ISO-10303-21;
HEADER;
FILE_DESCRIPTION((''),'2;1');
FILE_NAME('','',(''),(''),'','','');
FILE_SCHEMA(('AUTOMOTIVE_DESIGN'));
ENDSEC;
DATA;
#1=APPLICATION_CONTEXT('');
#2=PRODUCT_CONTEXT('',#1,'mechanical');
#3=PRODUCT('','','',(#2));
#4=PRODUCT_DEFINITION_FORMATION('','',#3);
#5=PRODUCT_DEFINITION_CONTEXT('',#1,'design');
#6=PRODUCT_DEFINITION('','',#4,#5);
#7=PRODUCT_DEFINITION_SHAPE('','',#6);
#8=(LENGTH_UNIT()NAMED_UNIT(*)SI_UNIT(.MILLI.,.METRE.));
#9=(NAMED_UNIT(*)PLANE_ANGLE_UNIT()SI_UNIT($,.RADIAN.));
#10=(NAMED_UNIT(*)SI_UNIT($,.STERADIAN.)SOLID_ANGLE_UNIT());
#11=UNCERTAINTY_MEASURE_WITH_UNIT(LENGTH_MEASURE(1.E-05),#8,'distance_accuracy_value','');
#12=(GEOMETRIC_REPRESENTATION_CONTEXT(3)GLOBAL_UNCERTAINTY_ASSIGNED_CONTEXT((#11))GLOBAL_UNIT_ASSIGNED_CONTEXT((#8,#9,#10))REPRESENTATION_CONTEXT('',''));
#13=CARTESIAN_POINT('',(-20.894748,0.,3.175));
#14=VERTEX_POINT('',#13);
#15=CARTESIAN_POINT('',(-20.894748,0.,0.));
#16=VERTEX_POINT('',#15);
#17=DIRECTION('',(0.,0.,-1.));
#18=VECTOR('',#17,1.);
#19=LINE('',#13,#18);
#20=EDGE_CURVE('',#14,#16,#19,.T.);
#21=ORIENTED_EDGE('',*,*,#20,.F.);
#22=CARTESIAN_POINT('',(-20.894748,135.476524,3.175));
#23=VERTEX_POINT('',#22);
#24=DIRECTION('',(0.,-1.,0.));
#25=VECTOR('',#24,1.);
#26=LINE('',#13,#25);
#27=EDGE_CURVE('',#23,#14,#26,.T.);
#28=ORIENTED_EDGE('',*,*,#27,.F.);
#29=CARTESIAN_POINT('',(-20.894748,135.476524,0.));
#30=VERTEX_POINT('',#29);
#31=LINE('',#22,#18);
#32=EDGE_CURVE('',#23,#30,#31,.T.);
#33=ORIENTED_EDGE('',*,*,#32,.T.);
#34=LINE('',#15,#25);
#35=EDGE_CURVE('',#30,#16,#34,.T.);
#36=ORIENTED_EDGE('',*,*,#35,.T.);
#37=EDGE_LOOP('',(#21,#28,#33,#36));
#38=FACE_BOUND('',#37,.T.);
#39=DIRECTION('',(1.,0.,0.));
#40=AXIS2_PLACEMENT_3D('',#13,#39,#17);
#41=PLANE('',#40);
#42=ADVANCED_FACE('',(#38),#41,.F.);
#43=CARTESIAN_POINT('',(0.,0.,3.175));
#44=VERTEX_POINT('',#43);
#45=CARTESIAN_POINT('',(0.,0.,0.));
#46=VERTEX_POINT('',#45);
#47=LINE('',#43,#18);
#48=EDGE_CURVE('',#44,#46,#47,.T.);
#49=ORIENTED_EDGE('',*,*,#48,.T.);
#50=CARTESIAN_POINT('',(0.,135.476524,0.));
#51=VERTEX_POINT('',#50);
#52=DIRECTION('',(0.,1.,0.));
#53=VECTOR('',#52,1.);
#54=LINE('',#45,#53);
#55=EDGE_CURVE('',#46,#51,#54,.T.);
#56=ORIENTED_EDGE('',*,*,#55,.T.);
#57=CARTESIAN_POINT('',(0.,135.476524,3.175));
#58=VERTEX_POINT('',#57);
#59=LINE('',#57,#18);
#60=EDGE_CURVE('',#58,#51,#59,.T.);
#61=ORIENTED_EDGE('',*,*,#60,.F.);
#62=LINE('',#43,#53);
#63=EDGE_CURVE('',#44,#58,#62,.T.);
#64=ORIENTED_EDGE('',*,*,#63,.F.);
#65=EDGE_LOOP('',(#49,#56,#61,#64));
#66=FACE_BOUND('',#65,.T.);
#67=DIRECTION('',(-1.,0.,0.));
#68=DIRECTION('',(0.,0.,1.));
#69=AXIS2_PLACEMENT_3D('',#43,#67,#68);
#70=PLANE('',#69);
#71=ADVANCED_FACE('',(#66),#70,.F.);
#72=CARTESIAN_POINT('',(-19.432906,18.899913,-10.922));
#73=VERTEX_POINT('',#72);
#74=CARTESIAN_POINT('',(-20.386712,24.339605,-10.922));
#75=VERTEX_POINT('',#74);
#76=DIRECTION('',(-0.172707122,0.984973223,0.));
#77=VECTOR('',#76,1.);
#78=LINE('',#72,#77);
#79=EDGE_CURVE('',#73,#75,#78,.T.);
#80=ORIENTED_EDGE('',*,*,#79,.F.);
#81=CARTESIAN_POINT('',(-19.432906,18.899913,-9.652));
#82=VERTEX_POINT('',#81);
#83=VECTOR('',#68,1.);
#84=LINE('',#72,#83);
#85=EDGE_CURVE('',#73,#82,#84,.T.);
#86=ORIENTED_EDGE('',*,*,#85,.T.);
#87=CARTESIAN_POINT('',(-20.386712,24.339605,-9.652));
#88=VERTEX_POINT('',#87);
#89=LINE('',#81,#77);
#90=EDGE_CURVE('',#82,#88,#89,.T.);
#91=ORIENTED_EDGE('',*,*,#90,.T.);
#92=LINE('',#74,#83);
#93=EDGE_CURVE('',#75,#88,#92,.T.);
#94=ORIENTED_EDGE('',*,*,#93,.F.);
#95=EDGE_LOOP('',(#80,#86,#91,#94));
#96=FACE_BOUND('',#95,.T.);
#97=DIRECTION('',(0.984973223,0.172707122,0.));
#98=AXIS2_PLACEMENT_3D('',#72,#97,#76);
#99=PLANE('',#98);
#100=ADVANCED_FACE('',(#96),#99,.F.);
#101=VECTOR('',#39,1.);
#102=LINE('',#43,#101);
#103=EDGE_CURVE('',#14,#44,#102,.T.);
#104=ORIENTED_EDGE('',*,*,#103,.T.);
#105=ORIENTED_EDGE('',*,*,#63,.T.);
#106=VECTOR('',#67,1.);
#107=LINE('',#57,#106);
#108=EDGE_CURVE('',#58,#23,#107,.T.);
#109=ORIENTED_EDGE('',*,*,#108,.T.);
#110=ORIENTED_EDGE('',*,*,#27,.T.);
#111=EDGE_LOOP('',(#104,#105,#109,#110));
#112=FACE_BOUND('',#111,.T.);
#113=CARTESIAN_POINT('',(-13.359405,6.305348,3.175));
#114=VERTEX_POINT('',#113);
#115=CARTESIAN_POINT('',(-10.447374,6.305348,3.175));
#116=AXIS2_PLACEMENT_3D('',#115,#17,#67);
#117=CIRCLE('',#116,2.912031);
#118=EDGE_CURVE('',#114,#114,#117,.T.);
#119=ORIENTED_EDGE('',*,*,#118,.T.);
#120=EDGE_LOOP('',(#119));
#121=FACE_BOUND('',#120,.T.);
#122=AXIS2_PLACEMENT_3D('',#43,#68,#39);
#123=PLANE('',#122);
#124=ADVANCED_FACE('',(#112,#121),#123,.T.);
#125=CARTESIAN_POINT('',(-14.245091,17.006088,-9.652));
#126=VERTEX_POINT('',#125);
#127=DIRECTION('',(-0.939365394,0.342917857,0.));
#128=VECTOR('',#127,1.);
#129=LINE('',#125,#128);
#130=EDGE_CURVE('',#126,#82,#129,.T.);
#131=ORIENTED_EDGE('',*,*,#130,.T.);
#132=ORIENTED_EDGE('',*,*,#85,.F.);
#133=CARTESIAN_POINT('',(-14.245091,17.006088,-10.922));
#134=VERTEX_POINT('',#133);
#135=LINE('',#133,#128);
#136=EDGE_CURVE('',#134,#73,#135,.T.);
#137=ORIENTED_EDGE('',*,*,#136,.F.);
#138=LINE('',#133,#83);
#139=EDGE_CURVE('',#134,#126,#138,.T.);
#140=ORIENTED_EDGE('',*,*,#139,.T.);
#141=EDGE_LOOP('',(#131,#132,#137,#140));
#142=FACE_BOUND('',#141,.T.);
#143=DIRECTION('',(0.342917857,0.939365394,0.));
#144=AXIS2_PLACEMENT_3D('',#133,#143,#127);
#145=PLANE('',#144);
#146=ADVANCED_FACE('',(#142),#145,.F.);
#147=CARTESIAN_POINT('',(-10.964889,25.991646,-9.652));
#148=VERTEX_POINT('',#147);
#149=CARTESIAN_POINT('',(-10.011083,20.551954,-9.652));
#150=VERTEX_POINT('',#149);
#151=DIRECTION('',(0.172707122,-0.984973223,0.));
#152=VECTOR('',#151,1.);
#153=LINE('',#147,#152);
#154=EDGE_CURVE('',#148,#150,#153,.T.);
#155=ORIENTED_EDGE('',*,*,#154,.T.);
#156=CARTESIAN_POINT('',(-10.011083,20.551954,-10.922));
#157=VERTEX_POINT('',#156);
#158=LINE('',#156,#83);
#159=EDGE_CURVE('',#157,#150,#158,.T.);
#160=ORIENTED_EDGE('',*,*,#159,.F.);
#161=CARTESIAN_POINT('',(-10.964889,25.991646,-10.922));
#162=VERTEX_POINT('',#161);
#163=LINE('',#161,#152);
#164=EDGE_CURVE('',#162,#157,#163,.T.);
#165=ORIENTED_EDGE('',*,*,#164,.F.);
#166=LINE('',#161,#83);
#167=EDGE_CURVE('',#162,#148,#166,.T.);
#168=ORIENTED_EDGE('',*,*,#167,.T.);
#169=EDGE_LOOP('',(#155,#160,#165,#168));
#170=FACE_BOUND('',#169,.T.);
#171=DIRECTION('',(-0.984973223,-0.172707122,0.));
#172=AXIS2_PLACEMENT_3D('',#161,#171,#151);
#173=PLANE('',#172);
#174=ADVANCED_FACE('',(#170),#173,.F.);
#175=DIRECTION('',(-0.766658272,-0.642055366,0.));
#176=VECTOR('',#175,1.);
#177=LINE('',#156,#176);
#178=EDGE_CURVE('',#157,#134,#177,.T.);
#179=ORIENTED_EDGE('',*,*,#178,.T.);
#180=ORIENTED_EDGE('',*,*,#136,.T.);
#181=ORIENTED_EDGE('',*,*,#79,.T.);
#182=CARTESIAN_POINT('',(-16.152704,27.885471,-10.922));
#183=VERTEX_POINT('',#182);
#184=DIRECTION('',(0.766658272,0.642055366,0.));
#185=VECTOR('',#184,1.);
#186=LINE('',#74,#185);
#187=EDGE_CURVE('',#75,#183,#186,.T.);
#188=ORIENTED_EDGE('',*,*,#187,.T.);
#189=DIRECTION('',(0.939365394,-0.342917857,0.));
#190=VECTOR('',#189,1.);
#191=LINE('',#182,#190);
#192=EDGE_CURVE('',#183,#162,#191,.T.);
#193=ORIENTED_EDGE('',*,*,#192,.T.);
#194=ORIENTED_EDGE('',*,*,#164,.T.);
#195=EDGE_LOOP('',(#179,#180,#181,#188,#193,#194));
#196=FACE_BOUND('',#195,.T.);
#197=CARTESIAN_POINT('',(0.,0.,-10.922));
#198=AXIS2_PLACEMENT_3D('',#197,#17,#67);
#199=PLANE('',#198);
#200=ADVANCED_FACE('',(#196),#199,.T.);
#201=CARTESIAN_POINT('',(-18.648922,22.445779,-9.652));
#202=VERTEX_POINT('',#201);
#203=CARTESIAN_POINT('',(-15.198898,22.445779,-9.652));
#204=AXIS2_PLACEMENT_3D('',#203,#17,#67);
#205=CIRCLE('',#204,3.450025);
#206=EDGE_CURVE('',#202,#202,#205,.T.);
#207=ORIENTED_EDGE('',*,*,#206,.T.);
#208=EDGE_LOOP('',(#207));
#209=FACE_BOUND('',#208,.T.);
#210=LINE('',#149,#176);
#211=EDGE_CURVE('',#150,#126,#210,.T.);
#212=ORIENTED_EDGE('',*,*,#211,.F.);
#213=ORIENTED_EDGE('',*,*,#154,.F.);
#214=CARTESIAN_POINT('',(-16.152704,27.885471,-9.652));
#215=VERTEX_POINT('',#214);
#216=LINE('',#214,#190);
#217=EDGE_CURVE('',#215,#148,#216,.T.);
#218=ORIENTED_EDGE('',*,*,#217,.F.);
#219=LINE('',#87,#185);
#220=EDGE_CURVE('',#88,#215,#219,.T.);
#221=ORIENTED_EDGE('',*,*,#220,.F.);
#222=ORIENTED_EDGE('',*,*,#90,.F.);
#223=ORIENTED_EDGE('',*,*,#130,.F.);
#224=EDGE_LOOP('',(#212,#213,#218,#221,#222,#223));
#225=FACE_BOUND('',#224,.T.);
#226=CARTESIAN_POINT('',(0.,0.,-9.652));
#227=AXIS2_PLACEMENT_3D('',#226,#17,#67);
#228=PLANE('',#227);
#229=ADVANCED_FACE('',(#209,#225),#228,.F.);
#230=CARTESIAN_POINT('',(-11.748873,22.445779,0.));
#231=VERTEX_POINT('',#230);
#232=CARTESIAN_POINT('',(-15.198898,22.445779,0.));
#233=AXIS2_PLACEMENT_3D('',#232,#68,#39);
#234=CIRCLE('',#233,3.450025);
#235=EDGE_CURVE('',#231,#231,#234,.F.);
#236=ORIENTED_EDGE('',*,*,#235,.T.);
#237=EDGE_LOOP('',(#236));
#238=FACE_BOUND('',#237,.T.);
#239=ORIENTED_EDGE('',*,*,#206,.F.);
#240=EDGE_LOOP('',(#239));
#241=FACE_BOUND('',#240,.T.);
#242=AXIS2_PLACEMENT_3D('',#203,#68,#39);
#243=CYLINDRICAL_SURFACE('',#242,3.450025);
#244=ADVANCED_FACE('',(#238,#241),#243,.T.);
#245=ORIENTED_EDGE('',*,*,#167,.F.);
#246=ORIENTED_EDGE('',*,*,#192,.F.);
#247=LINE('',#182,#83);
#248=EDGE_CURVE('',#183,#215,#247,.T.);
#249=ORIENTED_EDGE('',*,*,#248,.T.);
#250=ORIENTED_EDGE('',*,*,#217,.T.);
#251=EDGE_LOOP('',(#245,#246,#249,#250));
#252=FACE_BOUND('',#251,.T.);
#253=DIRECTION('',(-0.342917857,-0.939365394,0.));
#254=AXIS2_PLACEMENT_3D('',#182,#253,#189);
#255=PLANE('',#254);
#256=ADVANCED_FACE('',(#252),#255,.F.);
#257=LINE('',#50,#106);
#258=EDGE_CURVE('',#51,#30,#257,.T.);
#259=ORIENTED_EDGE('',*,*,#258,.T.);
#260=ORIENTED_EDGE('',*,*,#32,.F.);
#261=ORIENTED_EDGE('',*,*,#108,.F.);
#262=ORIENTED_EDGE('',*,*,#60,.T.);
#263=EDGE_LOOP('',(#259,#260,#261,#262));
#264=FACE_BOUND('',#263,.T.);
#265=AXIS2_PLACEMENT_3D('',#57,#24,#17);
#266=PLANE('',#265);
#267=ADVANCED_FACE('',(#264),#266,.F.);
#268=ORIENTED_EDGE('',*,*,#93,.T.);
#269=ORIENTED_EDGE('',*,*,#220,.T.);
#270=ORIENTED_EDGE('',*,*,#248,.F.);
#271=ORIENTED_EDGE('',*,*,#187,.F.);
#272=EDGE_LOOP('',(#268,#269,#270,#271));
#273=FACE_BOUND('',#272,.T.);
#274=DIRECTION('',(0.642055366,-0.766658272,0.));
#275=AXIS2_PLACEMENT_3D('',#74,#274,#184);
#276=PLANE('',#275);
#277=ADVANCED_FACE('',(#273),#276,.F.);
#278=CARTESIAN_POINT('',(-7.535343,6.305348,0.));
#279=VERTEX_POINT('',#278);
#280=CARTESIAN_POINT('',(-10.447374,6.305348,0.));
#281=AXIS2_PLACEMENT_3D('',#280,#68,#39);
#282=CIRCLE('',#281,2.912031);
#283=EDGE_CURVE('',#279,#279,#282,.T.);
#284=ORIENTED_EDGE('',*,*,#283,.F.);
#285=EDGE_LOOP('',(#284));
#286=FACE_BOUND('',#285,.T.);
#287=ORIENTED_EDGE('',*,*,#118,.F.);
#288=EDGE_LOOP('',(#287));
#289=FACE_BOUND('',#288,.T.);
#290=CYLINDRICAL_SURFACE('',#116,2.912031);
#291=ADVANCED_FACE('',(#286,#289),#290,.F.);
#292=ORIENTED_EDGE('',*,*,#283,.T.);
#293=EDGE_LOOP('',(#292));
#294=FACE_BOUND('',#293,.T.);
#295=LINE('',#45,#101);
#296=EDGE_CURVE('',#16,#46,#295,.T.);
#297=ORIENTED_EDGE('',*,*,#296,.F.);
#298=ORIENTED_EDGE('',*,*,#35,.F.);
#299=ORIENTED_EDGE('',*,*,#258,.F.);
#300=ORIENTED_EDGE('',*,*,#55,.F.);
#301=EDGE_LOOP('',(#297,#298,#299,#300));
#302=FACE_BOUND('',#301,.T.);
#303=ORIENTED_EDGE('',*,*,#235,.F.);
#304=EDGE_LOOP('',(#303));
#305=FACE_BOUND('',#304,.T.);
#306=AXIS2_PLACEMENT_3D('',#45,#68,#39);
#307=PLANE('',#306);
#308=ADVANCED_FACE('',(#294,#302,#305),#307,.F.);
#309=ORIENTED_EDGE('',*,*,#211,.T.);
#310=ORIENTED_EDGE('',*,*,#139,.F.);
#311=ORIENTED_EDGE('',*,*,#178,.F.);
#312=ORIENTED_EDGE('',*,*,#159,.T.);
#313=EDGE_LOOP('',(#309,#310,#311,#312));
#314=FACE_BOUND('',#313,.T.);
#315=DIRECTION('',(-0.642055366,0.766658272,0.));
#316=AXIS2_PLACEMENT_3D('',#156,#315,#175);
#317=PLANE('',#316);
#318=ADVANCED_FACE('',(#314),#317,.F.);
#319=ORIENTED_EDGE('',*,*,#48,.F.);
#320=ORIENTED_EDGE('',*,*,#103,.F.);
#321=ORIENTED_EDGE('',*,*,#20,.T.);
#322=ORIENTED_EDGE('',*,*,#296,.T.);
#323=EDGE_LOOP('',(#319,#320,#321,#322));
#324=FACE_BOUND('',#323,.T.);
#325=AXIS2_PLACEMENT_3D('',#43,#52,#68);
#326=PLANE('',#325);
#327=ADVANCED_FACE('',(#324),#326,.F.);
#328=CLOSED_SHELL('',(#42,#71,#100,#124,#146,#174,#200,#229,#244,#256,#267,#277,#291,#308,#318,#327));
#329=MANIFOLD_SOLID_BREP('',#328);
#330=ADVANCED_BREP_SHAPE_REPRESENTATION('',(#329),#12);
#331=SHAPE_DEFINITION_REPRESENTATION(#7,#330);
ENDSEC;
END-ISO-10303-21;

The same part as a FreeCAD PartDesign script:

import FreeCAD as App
import Part
import Sketcher

V = App.Vector


def add_polygon(sketch, points):
    """Adds a closed chain of lines whose ends are joined by coincident constraints."""
    first, n = sketch.GeometryCount, len(points)
    for a, b in zip(points, points[1:] + points[:1]):
        sketch.addGeometry(Part.LineSegment(App.Vector(*a, 0), App.Vector(*b, 0)), False)
    for i in range(n):
        sketch.addConstraint(Sketcher.Constraint("Coincident", first + i, 2, first + (i + 1) % n, 1))

doc = App.newDocument("Part")
params = doc.addObject("Spreadsheet::Sheet", "Params")
for row, (alias, value) in enumerate([
    ("pad1_length", "0.125 in"),
    ("pad2_length", "0.38 in"),
    ("pad3_length", "0.05 in"),
], start=1):
    params.set(f"A{row}", alias)
    params.set(f"B{row}", "=" + value)
    params.setAlias(f"B{row}", alias)

body = doc.addObject("PartDesign::Body", "Body")

sketch1 = body.newObject("Sketcher::SketchObject", "Sketch")
sketch1.AttachmentSupport = (doc.getObject("XY_Plane"), [""])
sketch1.MapMode = "FlatFace"
add_polygon(sketch1, [(-21, 135), (-21, 0), (0, 0), (0, 135)])
sketch1.addConstraint([
    Sketcher.Constraint("Vertical", 0),
    Sketcher.Constraint("Horizontal", 1),
    Sketcher.Constraint("Vertical", 2),
    Sketcher.Constraint("Horizontal", 3),
    Sketcher.Constraint("Coincident", 1, 2, -1, 1),
    Sketcher.Constraint("DistanceX", 1, 1, 1, 2, 20.894748),
    Sketcher.Constraint("DistanceY", 0, 2, 0, 1, 135.476524),
])
pad1 = body.newObject("PartDesign::Pad", "Pad")
pad1.Profile = sketch1
pad1.setExpression("Length", "Params.pad1_length")

sketch2 = body.newObject("Sketcher::SketchObject", "Sketch001")
sketch2.AttachmentSupport = (doc.getObject("XY_Plane"), [""])
sketch2.MapMode = "FlatFace"
sketch2.addGeometry(Part.Circle(V(-10.4, 6.3, 0), V(0, 0, 1), 2.9), False)
sketch2.addConstraint([
    Sketcher.Constraint("Diameter", 0, 5.824062),
    Sketcher.Constraint("DistanceX", 0, 3, -1, 1, 10.447374),
    Sketcher.Constraint("DistanceY", -1, 1, 0, 3, 6.305348),
])
pocket1 = body.newObject("PartDesign::Pocket", "Pocket")
pocket1.Profile = sketch2
pocket1.Type = "ThroughAll"
pocket1.Midplane = True

sketch3 = body.newObject("Sketcher::SketchObject", "Sketch002")
sketch3.AttachmentSupport = (doc.getObject("XY_Plane"), [""])
sketch3.MapMode = "FlatFace"
sketch3.addGeometry(Part.Circle(V(-15.2, 22.4, 0), V(0, 0, 1), 3.5), False)
sketch3.addConstraint([
    Sketcher.Constraint("Diameter", 0, 6.900049),
    Sketcher.Constraint("DistanceY", -1, 1, 0, 3, 22.445779),
    Sketcher.Constraint("DistanceX", 0, 3, -1, 1, 15.198898),
])
pad2 = body.newObject("PartDesign::Pad", "Pad001")
pad2.Profile = sketch3
pad2.setExpression("Length", "Params.pad2_length")
pad2.Reversed = True

sketch4 = body.newObject("Sketcher::SketchObject", "Sketch003")
sketch4.AttachmentSupport = (doc.getObject("XY_Plane"), [""])
sketch4.MapMode = "FlatFace"
sketch4.AttachmentOffset = App.Placement(V(0, 0, -0.38 * 25.4), App.Rotation())
add_polygon(sketch4, [(-11, 26), (-10, 21), (-14, 17), (-19, 19), (-20, 24), (-16, 28)])
sketch4.addConstraint([
    Sketcher.Constraint("Parallel", 0, 3),
    Sketcher.Constraint("Parallel", 1, 4),
    Sketcher.Constraint("Parallel", 2, 5),
    Sketcher.Constraint("Equal", 0, 1),
    Sketcher.Constraint("Equal", 1, 2),
    Sketcher.Constraint("Equal", 2, 3),
    Sketcher.Constraint("Distance", 0, 5.52268),
    Sketcher.Constraint("DistanceX", 1, 2, -1, 1, 14.245091),
    Sketcher.Constraint("DistanceX", 3, 2, -1, 1, 20.386712),
    Sketcher.Constraint("DistanceY", -1, 1, 4, 2, 27.885471),
    Sketcher.Constraint("DistanceX", 5, 2, -1, 1, 10.964889),
    Sketcher.Constraint("DistanceX", 1, 2, 0, 2, 4.234008),
])
pad3 = body.newObject("PartDesign::Pad", "Pad002")
pad3.Profile = sketch4
pad3.setExpression("Length", "Params.pad3_length")
pad3.Reversed = True

doc.recompute()
